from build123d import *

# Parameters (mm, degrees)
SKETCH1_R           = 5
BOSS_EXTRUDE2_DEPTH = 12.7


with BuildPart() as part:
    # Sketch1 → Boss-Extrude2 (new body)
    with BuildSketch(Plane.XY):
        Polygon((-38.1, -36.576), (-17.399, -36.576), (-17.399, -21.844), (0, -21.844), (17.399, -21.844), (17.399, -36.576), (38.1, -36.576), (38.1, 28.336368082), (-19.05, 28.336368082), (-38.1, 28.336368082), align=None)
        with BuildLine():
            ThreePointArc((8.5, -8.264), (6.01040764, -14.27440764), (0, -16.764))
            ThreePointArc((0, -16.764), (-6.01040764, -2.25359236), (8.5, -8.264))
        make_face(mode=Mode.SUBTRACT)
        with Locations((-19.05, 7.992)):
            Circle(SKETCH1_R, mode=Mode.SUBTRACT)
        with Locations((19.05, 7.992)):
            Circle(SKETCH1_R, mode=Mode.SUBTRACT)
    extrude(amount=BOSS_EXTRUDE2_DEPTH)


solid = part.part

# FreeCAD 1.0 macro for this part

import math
import FreeCAD as App
import Part
import Sketcher
Q = App.Units.Quantity

doc = App.newDocument("Part")
body = doc.addObject("PartDesign::Body", "Body")

# Sketch on XY plane
sketch1 = body.newObject("Sketcher::SketchObject", "Sketch")
sketch1.AttachmentSupport = (doc.getObject("XY_Plane"), [""])
sketch1.MapMode = "FlatFace"
sketch1.addGeometry(Part.LineSegment(App.Vector(-38.1, -36.576, 0), App.Vector(-17.399, -36.576, 0)), False)
sketch1.addGeometry(Part.LineSegment(App.Vector(-17.399, -36.576, 0), App.Vector(-17.399, -21.844, 0)), False)
sketch1.addGeometry(Part.LineSegment(App.Vector(-17.399, -21.844, 0), App.Vector(17.399, -21.844, 0)), False)
sketch1.addGeometry(Part.LineSegment(App.Vector(17.399, -21.844, 0), App.Vector(17.399, -36.576, 0)), False)
sketch1.addGeometry(Part.LineSegment(App.Vector(17.399, -36.576, 0), App.Vector(38.1, -36.576, 0)), False)
sketch1.addGeometry(Part.LineSegment(App.Vector(38.1, -36.576, 0), App.Vector(38.1, 28.336368, 0)), False)
sketch1.addGeometry(Part.LineSegment(App.Vector(38.1, 28.336368, 0), App.Vector(-38.1, 28.336368, 0)), False)
sketch1.addGeometry(Part.LineSegment(App.Vector(-38.1, 28.336368, 0), App.Vector(-38.1, -36.576, 0)), False)
sketch1.addGeometry(Part.ArcOfCircle(Part.Circle(App.Vector(0, -8.264, 0), App.Vector(0, 0, 1), 8.5), math.radians(0), math.radians(270)), False)
sketch1.addGeometry(Part.ArcOfCircle(Part.Circle(App.Vector(0, -8.264, 0), App.Vector(0, 0, 1), 8.5), math.radians(-90), math.radians(0)), False)
sketch1.addGeometry(Part.Circle(App.Vector(-19.05, 7.992, 0), App.Vector(0, 0, 1), 5), False)
sketch1.addGeometry(Part.Circle(App.Vector(19.05, 7.992, 0), App.Vector(0, 0, 1), 5), False)
sketch1.addConstraint(Sketcher.Constraint("Coincident", 0, 2, 1, 1))
sketch1.addConstraint(Sketcher.Constraint("Coincident", 1, 2, 2, 1))
sketch1.addConstraint(Sketcher.Constraint("Coincident", 2, 2, 3, 1))
sketch1.addConstraint(Sketcher.Constraint("Coincident", 3, 2, 4, 1))
sketch1.addConstraint(Sketcher.Constraint("Coincident", 4, 2, 5, 1))
sketch1.addConstraint(Sketcher.Constraint("Coincident", 5, 2, 6, 1))
sketch1.addConstraint(Sketcher.Constraint("Coincident", 6, 2, 7, 1))
sketch1.addConstraint(Sketcher.Constraint("Coincident", 7, 2, 0, 1))
sketch1.addConstraint(Sketcher.Constraint("Tangent", 8, 1, 9, 2))
sketch1.addConstraint(Sketcher.Constraint("Coincident", 9, 1, 8, 2))
sketch1.addConstraint(Sketcher.Constraint("Horizontal", 0))
sketch1.addConstraint(Sketcher.Constraint("Vertical", 1))
sketch1.addConstraint(Sketcher.Constraint("Horizontal", 2))
sketch1.addConstraint(Sketcher.Constraint("Vertical", 3))
sketch1.addConstraint(Sketcher.Constraint("Horizontal", 4))
sketch1.addConstraint(Sketcher.Constraint("Vertical", 5))
sketch1.addConstraint(Sketcher.Constraint("Horizontal", 6))
sketch1.addConstraint(Sketcher.Constraint("Vertical", 7))
sketch1.addConstraint(Sketcher.Constraint("Equal", 10, 11))
sketch1.addConstraint(Sketcher.Constraint("Symmetric", 10, 3, 11, 3, -2))
sketch1.addConstraint(Sketcher.Constraint("Symmetric", 0, 2, 3, 2, -2))
sketch1.addConstraint(Sketcher.Constraint("PointOnObject", 8, 3, -2))
sketch1.addConstraint(Sketcher.Constraint("PointOnObject", 9, 1, -2))
sketch1.addConstraint(Sketcher.Constraint("Horizontal", 9, 3, 8, 1))
sketch1.addConstraint(Sketcher.Constraint("Equal", 0, 4))
sketch1.addConstraint(Sketcher.Constraint("DistanceX", 6, 2, 6, 1, Q("3 in")))
sketch1.addConstraint(Sketcher.Constraint("DistanceX", 2, 1, 2, 2, Q("1.37 in")))
sketch1.addConstraint(Sketcher.Constraint("DistanceY", 1, 1, 1, 2, Q("0.58 in")))
sketch1.addConstraint(Sketcher.Constraint("DistanceX", 10, 3, 11, 3, Q("1.5 in")))
sketch1.addConstraint(Sketcher.Constraint("DistanceY", 1, 2, 9, 1, Q("0.2 in")))
sketch1.addConstraint(Sketcher.Constraint("Diameter", 10, Q("10 mm")))
sketch1.addConstraint(Sketcher.Constraint("DistanceY", 0, 2, -1, 1, Q("1.44 in")))
sketch1.addConstraint(Sketcher.Constraint("Radius", 8, Q("8.5 mm")))
sketch1.addConstraint(Sketcher.Constraint("DistanceY", 8, 3, 10, 3, Q("0.64 in")))
sketch1.addConstraint(Sketcher.Constraint("DistanceY", 5, 1, 5, 2, Q("64.912368 mm")))
pad1 = body.newObject("PartDesign::Pad", "Pad")
pad1.Profile = sketch1
pad1.Length = Q("0.5 in")

doc.recompute()
